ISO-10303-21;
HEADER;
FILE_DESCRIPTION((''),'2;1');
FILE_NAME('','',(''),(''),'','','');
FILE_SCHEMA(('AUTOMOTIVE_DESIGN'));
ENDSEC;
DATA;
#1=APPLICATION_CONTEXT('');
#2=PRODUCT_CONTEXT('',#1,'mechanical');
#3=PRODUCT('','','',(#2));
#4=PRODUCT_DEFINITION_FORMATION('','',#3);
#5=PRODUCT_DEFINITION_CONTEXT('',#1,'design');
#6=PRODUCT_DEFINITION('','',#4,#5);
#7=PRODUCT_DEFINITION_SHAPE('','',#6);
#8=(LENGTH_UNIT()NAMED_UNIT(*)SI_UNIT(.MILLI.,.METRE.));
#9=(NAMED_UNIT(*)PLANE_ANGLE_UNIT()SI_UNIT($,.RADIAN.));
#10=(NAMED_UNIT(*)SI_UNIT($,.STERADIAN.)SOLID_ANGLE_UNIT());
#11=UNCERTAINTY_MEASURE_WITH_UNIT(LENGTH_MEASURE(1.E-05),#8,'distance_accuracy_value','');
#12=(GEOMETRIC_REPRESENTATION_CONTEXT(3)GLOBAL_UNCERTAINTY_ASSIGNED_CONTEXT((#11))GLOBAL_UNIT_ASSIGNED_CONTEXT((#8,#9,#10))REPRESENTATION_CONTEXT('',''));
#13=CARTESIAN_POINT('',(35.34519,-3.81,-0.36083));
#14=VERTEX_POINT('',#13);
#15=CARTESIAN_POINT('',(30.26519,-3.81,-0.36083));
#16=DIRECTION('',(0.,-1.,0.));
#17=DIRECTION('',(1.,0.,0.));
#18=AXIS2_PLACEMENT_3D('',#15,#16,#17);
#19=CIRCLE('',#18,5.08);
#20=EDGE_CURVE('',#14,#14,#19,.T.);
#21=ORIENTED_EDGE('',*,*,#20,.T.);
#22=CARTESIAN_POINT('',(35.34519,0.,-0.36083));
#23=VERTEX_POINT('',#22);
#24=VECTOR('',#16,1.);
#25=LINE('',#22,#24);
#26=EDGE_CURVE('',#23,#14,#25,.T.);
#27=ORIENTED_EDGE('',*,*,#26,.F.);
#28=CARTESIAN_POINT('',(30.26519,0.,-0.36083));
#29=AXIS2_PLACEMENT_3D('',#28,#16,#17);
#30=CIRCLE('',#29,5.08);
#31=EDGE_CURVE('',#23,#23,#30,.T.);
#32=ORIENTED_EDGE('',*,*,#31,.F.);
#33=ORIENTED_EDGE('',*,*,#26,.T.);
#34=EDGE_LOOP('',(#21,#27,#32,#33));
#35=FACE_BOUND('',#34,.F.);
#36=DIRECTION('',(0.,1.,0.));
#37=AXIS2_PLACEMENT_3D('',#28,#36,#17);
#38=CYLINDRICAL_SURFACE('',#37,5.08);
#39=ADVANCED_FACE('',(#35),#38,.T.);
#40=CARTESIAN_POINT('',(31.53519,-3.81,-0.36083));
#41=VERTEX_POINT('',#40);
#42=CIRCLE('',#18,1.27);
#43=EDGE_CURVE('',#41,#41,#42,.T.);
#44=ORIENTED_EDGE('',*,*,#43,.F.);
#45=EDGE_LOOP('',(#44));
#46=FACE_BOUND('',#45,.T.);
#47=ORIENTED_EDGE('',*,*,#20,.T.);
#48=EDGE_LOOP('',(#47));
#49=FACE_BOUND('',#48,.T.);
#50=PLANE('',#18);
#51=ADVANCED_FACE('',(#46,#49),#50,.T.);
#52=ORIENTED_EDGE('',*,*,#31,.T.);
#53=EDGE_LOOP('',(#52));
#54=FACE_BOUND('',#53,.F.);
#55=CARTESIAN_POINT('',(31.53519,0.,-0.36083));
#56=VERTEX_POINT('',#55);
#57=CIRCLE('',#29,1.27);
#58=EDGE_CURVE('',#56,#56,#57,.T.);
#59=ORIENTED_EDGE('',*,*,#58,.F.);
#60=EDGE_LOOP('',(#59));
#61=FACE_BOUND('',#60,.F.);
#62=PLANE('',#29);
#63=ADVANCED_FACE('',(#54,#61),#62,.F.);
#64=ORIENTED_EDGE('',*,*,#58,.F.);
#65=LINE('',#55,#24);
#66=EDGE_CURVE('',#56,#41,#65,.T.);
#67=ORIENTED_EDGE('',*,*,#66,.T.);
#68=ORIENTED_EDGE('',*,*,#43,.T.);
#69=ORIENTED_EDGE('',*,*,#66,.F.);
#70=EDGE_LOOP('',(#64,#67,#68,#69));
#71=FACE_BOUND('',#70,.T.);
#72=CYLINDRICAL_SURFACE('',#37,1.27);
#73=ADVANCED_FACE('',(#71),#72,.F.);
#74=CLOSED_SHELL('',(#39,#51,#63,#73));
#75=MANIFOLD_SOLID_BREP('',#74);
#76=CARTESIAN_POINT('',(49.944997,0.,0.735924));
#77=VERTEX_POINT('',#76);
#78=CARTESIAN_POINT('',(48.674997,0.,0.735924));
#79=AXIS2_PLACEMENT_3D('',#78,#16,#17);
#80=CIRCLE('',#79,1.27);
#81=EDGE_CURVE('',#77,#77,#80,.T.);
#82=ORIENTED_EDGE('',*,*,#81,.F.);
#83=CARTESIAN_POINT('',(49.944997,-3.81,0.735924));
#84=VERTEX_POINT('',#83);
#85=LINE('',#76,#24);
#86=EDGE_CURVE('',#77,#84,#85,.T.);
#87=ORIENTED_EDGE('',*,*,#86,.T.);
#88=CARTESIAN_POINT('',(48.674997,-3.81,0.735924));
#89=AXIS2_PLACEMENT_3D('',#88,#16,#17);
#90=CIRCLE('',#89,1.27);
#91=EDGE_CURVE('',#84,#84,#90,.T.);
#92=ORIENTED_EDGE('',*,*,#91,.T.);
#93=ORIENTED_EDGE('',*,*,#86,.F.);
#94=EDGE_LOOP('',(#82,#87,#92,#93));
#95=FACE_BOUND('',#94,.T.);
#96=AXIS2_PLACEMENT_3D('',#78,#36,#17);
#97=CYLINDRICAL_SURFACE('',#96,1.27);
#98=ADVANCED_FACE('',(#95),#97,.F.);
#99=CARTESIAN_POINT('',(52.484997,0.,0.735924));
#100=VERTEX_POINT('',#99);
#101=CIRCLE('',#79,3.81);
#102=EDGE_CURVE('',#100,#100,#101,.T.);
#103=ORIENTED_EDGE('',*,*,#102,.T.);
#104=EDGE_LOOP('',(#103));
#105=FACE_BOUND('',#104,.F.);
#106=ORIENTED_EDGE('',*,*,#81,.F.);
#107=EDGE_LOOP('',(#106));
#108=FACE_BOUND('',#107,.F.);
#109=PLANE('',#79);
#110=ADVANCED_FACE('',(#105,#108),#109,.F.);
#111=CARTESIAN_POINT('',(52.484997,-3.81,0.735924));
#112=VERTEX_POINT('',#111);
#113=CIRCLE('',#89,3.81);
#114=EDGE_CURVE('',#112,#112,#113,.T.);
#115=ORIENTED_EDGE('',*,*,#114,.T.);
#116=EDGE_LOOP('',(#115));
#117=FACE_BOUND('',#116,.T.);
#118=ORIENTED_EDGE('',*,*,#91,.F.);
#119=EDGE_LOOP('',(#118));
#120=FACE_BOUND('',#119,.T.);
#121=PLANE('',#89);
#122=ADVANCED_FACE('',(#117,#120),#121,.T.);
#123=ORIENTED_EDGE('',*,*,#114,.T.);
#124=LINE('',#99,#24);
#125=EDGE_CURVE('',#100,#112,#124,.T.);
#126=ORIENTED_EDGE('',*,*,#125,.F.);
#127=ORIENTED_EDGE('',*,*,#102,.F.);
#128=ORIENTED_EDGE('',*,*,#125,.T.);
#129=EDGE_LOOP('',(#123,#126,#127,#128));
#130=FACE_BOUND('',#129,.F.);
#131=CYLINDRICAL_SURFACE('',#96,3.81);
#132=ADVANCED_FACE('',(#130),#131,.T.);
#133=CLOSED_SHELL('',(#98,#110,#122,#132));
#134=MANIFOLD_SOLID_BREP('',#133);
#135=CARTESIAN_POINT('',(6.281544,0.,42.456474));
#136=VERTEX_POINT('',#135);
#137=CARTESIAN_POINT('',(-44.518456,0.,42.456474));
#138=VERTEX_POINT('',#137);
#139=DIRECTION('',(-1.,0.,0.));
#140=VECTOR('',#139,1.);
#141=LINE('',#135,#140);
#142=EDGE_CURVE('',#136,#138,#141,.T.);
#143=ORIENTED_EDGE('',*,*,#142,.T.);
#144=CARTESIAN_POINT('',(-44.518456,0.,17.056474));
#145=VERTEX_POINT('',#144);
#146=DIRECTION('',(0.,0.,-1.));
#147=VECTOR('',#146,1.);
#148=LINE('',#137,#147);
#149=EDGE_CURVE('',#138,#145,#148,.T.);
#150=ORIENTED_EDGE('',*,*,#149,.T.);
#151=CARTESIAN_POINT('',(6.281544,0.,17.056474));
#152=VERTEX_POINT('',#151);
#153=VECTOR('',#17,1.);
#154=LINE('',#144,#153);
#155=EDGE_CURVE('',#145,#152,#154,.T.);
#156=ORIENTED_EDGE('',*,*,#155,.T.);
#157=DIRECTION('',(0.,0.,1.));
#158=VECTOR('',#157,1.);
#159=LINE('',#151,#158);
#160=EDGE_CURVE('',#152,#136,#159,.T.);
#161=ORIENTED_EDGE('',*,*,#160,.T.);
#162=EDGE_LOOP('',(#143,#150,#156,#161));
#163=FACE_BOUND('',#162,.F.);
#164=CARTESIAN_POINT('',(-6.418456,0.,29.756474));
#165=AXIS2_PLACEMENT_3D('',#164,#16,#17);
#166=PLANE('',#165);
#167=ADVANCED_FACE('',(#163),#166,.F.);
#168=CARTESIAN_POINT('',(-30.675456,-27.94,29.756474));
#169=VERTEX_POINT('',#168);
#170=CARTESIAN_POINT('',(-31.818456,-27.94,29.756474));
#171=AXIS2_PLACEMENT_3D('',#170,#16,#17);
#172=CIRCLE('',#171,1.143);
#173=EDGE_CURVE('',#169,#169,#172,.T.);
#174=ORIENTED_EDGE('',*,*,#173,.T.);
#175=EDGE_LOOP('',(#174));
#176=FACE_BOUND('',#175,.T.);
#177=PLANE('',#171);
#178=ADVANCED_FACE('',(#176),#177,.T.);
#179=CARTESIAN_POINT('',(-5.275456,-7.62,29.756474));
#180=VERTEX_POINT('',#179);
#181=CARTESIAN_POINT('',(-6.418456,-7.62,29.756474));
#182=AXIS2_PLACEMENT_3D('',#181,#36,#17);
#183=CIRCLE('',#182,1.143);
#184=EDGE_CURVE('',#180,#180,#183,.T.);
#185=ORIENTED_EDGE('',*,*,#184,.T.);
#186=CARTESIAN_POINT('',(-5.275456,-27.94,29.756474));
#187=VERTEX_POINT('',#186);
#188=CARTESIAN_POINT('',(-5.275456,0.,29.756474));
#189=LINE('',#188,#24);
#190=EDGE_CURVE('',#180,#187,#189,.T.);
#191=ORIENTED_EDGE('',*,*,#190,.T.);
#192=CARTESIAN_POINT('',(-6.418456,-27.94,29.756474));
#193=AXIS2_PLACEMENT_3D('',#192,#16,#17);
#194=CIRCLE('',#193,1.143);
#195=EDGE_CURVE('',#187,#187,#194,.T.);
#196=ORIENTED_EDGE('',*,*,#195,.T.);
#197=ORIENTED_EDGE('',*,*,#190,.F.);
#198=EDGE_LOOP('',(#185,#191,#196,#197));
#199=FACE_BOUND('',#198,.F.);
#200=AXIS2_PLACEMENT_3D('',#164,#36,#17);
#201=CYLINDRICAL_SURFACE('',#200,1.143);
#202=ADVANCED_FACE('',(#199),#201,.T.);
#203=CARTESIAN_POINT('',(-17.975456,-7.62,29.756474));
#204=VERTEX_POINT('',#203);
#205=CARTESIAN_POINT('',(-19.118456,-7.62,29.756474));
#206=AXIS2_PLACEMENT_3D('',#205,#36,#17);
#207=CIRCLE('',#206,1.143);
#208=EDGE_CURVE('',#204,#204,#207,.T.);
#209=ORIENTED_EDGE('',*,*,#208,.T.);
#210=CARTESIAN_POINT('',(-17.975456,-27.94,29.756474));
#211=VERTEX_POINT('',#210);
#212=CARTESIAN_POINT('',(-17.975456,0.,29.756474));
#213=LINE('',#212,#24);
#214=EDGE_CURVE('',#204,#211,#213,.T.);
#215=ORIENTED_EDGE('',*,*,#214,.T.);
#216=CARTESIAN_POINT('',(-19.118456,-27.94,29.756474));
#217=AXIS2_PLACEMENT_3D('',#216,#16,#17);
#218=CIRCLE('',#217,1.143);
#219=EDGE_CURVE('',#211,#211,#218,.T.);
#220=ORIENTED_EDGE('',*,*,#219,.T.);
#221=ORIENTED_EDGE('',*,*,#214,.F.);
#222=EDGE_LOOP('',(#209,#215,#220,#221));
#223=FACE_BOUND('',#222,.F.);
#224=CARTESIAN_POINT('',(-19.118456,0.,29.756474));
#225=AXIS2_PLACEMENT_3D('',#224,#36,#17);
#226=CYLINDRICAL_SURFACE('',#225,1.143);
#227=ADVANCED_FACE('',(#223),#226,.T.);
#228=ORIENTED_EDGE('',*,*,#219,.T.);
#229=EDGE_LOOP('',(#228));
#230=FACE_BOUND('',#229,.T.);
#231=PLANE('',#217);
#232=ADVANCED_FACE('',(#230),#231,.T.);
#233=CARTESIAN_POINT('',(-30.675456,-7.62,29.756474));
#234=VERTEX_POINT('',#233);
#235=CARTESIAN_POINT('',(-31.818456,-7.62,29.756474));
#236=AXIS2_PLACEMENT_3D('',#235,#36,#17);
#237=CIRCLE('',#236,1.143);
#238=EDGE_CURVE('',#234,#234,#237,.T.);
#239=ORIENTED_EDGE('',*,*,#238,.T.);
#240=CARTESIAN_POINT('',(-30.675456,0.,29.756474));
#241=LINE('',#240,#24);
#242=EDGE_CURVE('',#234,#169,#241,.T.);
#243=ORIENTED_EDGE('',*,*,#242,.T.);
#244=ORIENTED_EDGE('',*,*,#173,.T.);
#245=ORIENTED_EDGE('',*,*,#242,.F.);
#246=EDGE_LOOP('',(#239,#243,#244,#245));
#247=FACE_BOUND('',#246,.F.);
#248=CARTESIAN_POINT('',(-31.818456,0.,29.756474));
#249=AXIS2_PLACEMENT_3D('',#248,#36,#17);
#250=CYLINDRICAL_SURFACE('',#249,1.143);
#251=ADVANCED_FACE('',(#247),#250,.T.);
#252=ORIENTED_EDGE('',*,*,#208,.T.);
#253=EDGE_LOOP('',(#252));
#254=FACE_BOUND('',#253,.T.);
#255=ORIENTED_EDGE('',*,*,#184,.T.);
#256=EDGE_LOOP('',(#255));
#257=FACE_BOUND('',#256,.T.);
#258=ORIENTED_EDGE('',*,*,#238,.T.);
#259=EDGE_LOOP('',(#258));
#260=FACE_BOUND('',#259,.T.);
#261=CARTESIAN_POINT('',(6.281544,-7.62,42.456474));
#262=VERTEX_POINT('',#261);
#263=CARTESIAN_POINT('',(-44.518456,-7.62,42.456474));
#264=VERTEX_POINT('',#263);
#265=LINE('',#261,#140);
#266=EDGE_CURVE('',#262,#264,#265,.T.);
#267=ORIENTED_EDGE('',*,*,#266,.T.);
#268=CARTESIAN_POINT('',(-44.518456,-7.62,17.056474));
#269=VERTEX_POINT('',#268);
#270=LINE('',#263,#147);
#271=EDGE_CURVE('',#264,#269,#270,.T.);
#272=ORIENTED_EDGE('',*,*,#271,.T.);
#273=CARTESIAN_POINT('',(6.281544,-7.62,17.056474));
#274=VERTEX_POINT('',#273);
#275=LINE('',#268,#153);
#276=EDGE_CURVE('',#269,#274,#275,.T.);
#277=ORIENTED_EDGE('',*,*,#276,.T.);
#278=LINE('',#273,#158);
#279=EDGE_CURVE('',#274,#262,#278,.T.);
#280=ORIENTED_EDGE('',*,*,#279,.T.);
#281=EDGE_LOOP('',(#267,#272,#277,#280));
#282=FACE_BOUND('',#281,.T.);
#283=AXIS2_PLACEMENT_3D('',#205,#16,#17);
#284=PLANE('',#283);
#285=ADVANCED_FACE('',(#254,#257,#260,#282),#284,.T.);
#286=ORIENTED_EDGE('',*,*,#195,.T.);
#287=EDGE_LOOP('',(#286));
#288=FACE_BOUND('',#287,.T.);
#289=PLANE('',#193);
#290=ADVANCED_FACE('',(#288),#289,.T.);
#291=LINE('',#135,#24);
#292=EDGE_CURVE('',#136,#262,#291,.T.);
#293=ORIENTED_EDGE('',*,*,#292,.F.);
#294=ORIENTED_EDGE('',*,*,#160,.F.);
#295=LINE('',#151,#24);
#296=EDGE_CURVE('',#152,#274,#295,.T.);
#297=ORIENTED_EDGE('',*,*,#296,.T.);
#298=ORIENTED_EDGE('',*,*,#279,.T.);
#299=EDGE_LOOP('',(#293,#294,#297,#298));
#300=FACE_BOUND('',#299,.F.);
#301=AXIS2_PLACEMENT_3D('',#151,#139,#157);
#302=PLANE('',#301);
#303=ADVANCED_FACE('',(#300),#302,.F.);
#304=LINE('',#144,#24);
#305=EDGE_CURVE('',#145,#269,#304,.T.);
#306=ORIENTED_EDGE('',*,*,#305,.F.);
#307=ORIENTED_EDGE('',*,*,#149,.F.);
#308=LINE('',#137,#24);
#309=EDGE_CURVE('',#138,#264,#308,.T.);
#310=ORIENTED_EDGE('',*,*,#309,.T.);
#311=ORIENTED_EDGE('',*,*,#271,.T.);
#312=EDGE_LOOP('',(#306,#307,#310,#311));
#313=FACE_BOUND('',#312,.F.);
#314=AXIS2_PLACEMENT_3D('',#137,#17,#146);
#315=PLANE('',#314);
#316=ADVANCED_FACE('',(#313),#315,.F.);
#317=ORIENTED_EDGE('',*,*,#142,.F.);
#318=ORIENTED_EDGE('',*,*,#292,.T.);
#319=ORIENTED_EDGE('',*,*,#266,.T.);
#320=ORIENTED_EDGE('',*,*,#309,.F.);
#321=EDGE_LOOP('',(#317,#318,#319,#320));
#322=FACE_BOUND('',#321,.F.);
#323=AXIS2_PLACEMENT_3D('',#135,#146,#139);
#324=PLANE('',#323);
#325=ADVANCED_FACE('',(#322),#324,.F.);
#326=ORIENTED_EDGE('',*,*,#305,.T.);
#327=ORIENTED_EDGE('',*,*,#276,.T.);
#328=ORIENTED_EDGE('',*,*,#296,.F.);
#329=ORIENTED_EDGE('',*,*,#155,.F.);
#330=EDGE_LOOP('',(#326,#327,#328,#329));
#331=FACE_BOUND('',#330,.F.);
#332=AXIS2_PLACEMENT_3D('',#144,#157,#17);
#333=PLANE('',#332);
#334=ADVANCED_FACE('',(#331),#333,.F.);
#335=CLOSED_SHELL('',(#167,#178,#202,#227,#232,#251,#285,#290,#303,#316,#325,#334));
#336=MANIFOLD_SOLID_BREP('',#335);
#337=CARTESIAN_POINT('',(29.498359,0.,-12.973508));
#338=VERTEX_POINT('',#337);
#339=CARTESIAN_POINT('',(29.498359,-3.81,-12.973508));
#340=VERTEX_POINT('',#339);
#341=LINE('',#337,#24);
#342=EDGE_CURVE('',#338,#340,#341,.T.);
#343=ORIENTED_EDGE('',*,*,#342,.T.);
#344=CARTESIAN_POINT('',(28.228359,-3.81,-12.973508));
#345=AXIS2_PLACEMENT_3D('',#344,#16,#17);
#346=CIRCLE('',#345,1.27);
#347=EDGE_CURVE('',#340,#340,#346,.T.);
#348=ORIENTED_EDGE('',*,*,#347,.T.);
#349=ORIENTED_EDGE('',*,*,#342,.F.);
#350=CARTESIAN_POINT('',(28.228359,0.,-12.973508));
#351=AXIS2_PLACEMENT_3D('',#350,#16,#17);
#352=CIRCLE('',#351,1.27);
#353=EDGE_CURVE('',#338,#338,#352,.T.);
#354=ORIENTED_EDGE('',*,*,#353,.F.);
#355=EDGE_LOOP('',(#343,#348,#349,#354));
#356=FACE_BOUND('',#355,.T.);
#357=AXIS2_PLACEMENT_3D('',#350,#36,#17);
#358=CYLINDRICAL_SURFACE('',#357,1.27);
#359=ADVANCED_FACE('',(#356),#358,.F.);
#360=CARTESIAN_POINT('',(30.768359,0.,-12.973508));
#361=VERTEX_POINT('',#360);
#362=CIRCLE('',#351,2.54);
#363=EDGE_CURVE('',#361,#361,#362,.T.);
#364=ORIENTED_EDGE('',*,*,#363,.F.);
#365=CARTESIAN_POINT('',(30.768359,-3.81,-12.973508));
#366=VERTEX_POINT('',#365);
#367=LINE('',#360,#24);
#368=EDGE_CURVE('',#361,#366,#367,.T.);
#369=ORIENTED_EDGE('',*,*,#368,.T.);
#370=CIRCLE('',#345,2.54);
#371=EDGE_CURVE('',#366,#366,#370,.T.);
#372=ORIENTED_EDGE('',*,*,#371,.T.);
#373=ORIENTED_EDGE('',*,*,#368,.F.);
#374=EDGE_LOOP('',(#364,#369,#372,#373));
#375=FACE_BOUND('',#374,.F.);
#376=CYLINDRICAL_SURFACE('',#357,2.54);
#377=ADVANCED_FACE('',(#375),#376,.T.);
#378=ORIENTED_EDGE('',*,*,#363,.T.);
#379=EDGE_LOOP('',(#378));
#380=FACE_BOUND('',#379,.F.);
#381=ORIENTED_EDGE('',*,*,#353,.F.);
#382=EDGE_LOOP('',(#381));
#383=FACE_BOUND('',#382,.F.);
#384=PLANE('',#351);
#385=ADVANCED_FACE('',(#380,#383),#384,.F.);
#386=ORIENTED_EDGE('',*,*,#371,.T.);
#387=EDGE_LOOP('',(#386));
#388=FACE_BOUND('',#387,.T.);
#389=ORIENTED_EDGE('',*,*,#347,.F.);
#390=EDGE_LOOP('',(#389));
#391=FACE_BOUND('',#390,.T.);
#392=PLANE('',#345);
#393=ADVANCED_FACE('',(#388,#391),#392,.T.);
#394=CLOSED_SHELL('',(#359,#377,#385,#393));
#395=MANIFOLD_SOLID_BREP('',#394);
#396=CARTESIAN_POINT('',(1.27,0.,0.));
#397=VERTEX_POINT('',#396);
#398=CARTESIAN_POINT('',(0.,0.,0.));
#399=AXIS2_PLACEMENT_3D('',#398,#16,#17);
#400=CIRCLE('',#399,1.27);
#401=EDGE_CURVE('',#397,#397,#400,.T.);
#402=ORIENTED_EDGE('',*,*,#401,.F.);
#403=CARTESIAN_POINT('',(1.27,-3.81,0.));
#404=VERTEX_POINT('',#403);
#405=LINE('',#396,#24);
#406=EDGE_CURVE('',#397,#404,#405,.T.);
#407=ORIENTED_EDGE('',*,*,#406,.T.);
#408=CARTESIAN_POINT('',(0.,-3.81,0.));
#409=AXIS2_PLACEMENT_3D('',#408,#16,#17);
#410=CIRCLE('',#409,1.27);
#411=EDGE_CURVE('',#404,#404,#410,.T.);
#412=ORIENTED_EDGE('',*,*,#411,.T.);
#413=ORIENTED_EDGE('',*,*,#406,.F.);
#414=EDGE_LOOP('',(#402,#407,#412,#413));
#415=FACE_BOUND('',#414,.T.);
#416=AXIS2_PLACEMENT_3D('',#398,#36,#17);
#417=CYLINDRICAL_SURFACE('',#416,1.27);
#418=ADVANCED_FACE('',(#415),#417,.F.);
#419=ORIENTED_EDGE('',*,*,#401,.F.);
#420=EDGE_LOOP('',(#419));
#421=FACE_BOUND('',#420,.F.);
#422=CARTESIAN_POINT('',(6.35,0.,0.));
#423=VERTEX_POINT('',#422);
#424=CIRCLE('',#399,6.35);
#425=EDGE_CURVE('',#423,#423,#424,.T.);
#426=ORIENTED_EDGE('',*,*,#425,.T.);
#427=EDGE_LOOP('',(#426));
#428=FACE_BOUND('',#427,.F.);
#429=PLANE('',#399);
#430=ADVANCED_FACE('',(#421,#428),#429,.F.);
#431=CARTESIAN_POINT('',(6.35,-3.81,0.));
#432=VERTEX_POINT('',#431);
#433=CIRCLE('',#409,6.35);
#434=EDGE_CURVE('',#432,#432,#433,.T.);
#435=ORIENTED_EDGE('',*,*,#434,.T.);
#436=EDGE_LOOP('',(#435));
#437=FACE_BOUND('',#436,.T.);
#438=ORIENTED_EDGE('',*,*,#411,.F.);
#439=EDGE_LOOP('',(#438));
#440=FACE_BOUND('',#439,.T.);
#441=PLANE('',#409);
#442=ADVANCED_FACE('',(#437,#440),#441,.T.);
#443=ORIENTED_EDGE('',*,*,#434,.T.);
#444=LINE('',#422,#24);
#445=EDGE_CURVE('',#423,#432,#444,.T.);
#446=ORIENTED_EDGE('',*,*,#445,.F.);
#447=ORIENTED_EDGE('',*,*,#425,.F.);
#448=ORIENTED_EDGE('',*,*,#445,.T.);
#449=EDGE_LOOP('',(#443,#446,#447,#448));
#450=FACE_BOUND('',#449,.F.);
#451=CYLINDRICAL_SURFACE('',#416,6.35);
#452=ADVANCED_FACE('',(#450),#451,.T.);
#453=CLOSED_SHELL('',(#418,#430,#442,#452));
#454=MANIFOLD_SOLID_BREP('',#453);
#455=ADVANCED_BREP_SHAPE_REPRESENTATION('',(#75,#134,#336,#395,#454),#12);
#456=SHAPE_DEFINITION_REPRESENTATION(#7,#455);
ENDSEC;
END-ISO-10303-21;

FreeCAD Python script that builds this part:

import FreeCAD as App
import Part
import Sketcher

V = App.Vector
Q = App.Units.Quantity


def add_polygon(sketch, points):
    """Adds a closed chain of lines whose ends are joined by coincident constraints."""
    first, n = sketch.GeometryCount, len(points)
    for a, b in zip(points, points[1:] + points[:1]):
        sketch.addGeometry(Part.LineSegment(App.Vector(*a, 0), App.Vector(*b, 0)), False)
    for i in range(n):
        sketch.addConstraint(Sketcher.Constraint("Coincident", first + i, 2, first + (i + 1) % n, 1))

doc = App.newDocument("Part")
body = doc.addObject("PartDesign::Body", "Body")

sketch1 = body.newObject("Sketcher::SketchObject", "Sketch")
sketch1.AttachmentSupport = (doc.getObject("XZ_Plane"), [""])
sketch1.MapMode = "FlatFace"
add_polygon(sketch1, [(-44.518456, 42.456474), (-44.518456, 17.056474), (6.281544, 17.056474), (6.281544, 42.456474)])
sketch1.addConstraint(Sketcher.Constraint("Vertical", 0))
sketch1.addConstraint(Sketcher.Constraint("Horizontal", 1))
sketch1.addConstraint(Sketcher.Constraint("Vertical", 2))
sketch1.addConstraint(Sketcher.Constraint("Horizontal", 3))
sketch1.addConstraint(Sketcher.Constraint("DistanceX", 1, 1, 1, 2, Q("2 in")))
sketch1.addConstraint(Sketcher.Constraint("DistanceY", 0, 2, 0, 1, Q("1 in")))
sketch1.addConstraint(Sketcher.Constraint("DistanceX", 0, 2, -1, 1, Q("44.518456 mm")))
sketch1.addConstraint(Sketcher.Constraint("DistanceY", -1, 1, 0, 2, Q("17.056474 mm")))
pad1 = body.newObject("PartDesign::Pad", "Pad")
pad1.Profile = sketch1
pad1.Length = Q("0.3 in")

sketch2 = body.newObject("Sketcher::SketchObject", "Sketch001")
sketch2.AttachmentSupport = (doc.getObject("XZ_Plane"), [""])
sketch2.MapMode = "FlatFace"
sketch2.addGeometry(Part.Circle(V(-6.418456, 29.756474, 0), V(0, 0, 1), 1.143), False)
sketch2.addGeometry(Part.Circle(V(-19.118456, 29.756474, 0), V(0, 0, 1), 1.143), False)
sketch2.addGeometry(Part.Circle(V(-31.818456, 29.756474, 0), V(0, 0, 1), 1.143), False)
sketch2.addConstraint(Sketcher.Constraint("Equal", 0, 1))
sketch2.addConstraint(Sketcher.Constraint("Equal", 1, 2))
sketch2.addConstraint(Sketcher.Constraint("Horizontal", 0, 3, 1, 3))
sketch2.addConstraint(Sketcher.Constraint("Horizontal", 1, 3, 2, 3))
sketch2.addConstraint(Sketcher.Constraint("Diameter", 0, Q("0.09 in")))
sketch2.addConstraint(Sketcher.Constraint("DistanceX", 2, 3, 0, 3, Q("1 in")))
sketch2.addConstraint(Sketcher.Constraint("DistanceX", 1, 3, 0, 3, Q("0.5 in")))
sketch2.addConstraint(Sketcher.Constraint("DistanceX", 0, 3, -1, 1, Q("6.418456 mm")))
sketch2.addConstraint(Sketcher.Constraint("DistanceY", -1, 1, 0, 3, Q("29.756474 mm")))
pad2 = body.newObject("PartDesign::Pad", "Pad001")
pad2.Profile = sketch2
pad2.Length = Q("1.1 in")
body2 = doc.addObject("PartDesign::Body", "Body001")
body2.AllowCompound = True

sketch3 = body2.newObject("Sketcher::SketchObject", "Sketch002")
sketch3.AttachmentSupport = (doc.getObject("XZ_Plane001"), [""])
sketch3.MapMode = "FlatFace"
sketch3.addGeometry(Part.Circle(V(48.674997, 0.735924, 0), V(0, 0, 1), 3.81), False)
sketch3.addGeometry(Part.Circle(V(48.674997, 0.735924, 0), V(0, 0, 1), 1.27), False)
sketch3.addGeometry(Part.Circle(V(30.26519, -0.36083, 0), V(0, 0, 1), 5.08), False)
sketch3.addGeometry(Part.Circle(V(30.26519, -0.36083, 0), V(0, 0, 1), 1.27), False)
sketch3.addGeometry(Part.Circle(V(0, 0, 0), V(0, 0, 1), 6.35), False)
sketch3.addGeometry(Part.Circle(V(0, 0, 0), V(0, 0, 1), 1.27), False)
sketch3.addGeometry(Part.Circle(V(28.228359, -12.973508, 0), V(0, 0, 1), 2.54), False)
sketch3.addGeometry(Part.Circle(V(28.228359, -12.973508, 0), V(0, 0, 1), 1.27), False)
sketch3.addConstraint(Sketcher.Constraint("Coincident", 4, 3, -1, 1))
sketch3.addConstraint(Sketcher.Constraint("Coincident", 5, 3, -1, 1))
sketch3.addConstraint(Sketcher.Constraint("Coincident", 1, 3, 0, 3))
sketch3.addConstraint(Sketcher.Constraint("Coincident", 3, 3, 2, 3))
sketch3.addConstraint(Sketcher.Constraint("Coincident", 7, 3, 6, 3))
sketch3.addConstraint(Sketcher.Constraint("Equal", 1, 3))
sketch3.addConstraint(Sketcher.Constraint("Equal", 3, 5))
sketch3.addConstraint(Sketcher.Constraint("Equal", 5, 7))
sketch3.addConstraint(Sketcher.Constraint("Diameter", 0, Q("0.3 in")))
sketch3.addConstraint(Sketcher.Constraint("Diameter", 1, Q("0.1 in")))
sketch3.addConstraint(Sketcher.Constraint("Diameter", 2, Q("0.4 in")))
sketch3.addConstraint(Sketcher.Constraint("Diameter", 4, Q("0.5 in")))
sketch3.addConstraint(Sketcher.Constraint("Diameter", 6, Q("0.2 in")))
sketch3.addConstraint(Sketcher.Constraint("DistanceX", -1, 1, 2, 3, Q("30.26519 mm")))
sketch3.addConstraint(Sketcher.Constraint("DistanceY", 2, 3, -1, 1, Q("0.36083 mm")))
sketch3.addConstraint(Sketcher.Constraint("DistanceX", -1, 1, 6, 3, Q("28.228359 mm")))
sketch3.addConstraint(Sketcher.Constraint("DistanceY", 6, 3, -1, 1, Q("12.973508 mm")))
sketch3.addConstraint(Sketcher.Constraint("DistanceX", -1, 1, 0, 3, Q("48.674997 mm")))
sketch3.addConstraint(Sketcher.Constraint("DistanceY", -1, 1, 0, 3, Q("0.735924 mm")))
pad3 = body2.newObject("PartDesign::Pad", "Pad002")
pad3.Profile = sketch3
pad3.Length = Q("0.15 in")

doc.recompute()
